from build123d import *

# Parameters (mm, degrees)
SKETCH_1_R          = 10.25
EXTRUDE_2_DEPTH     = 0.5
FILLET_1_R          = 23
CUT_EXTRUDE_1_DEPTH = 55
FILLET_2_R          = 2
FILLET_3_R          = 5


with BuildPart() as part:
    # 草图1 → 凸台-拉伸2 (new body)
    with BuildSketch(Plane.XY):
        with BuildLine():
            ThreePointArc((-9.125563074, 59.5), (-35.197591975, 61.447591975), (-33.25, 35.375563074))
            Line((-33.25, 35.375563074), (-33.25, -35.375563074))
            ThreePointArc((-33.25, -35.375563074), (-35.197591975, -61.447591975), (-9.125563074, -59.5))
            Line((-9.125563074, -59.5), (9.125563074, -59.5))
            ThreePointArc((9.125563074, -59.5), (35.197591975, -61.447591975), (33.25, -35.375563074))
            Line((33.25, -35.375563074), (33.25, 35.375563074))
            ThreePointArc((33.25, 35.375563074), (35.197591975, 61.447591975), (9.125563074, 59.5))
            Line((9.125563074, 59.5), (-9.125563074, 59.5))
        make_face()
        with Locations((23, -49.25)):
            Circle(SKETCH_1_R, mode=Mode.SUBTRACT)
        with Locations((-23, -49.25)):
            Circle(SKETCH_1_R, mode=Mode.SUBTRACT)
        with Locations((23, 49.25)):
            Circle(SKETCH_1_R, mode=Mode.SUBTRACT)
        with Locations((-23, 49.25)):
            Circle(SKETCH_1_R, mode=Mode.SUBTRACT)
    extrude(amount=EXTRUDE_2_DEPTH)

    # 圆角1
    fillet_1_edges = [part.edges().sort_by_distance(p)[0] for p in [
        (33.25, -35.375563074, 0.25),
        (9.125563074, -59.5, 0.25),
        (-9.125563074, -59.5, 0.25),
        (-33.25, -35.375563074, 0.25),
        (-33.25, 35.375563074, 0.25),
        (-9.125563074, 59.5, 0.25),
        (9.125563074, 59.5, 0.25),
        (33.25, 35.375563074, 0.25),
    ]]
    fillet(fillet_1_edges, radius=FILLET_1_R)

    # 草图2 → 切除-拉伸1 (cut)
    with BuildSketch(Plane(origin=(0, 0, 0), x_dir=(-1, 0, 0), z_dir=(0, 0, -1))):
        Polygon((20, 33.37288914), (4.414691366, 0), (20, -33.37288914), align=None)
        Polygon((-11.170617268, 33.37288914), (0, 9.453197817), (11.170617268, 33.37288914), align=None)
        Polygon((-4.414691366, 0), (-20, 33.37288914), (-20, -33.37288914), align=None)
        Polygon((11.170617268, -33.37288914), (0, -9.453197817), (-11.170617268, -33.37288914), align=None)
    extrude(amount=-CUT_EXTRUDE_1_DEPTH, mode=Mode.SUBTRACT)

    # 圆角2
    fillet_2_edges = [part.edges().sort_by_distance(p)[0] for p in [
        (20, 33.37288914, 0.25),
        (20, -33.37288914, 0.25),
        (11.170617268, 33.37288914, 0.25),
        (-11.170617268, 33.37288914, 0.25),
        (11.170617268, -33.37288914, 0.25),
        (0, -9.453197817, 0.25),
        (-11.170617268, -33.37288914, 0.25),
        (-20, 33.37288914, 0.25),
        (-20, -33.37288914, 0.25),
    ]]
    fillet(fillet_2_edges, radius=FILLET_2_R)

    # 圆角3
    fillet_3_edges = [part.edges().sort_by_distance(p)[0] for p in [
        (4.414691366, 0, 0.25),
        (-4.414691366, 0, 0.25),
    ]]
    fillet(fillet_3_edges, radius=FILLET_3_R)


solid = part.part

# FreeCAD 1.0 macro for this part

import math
import FreeCAD as App
import Part
import Sketcher

V = App.Vector


def edges_at(feature, points):
    """Names of the edges that pass closest to the given points."""
    edges = feature.Shape.Edges
    near = lambda p: min(range(len(edges)), key=lambda i: edges[i].distToShape(Part.Vertex(*p))[0])
    return sorted({f"Edge{near(p) + 1}" for p in points})


def add_polygon(sketch, points):
    """Adds a closed chain of lines whose ends are joined by coincident constraints."""
    first, n = sketch.GeometryCount, len(points)
    for a, b in zip(points, points[1:] + points[:1]):
        sketch.addGeometry(Part.LineSegment(App.Vector(*a, 0), App.Vector(*b, 0)), False)
    for i in range(n):
        sketch.addConstraint(Sketcher.Constraint("Coincident", first + i, 2, first + (i + 1) % n, 1))

doc = App.newDocument("Part")
body = doc.addObject("PartDesign::Body", "Body")

# Sketch on XY plane
sketch1 = body.newObject("Sketcher::SketchObject", "Sketch")
sketch1.AttachmentSupport = (doc.getObject("XY_Plane"), [""])
sketch1.MapMode = "FlatFace"
sketch1.addGeometry([
    Part.ArcOfCircle(Part.Circle(V(-23, 49.25, 0), V(0, 0, 1), 17.25), math.radians(36.455829), math.radians(233.544171)),  # 0
    Part.LineSegment(V(-33.25, 35.375563, 0), V(-33.25, -35.375563, 0)),  # 1
    Part.ArcOfCircle(Part.Circle(V(-23, -49.25, 0), V(0, 0, 1), 17.25), math.radians(126.455829), math.radians(323.544171)),  # 2
    Part.LineSegment(V(-9.125563, -59.5, 0), V(9.125563, -59.5, 0)),  # 3
    Part.ArcOfCircle(Part.Circle(V(23, -49.25, 0), V(0, 0, 1), 17.25), math.radians(-143.544171), math.radians(53.544171)),  # 4
    Part.LineSegment(V(33.25, -35.375563, 0), V(33.25, 35.375563, 0)),  # 5
    Part.ArcOfCircle(Part.Circle(V(23, 49.25, 0), V(0, 0, 1), 17.25), math.radians(-53.544171), math.radians(143.544171)),  # 6
    Part.LineSegment(V(9.125563, 59.5, 0), V(-9.125563, 59.5, 0)),  # 7
    Part.Circle(V(-23, -49.25, 0), V(0, 0, 1), 10.25),  # 8
    Part.Circle(V(23, -49.25, 0), V(0, 0, 1), 10.25),  # 9
    Part.Circle(V(-23, 49.25, 0), V(0, 0, 1), 10.25),  # 10
    Part.Circle(V(23, 49.25, 0), V(0, 0, 1), 10.25),  # 11
], False)
sketch1.addConstraint([
    Sketcher.Constraint("Coincident", 0, 2, 1, 1),
    Sketcher.Constraint("Coincident", 1, 2, 2, 1),
    Sketcher.Constraint("Coincident", 2, 2, 3, 1),
    Sketcher.Constraint("Coincident", 3, 2, 4, 1),
    Sketcher.Constraint("Coincident", 4, 2, 5, 1),
    Sketcher.Constraint("Coincident", 5, 2, 6, 1),
    Sketcher.Constraint("Coincident", 6, 2, 7, 1),
    Sketcher.Constraint("Coincident", 7, 2, 0, 1),
    Sketcher.Constraint("Vertical", 1),
    Sketcher.Constraint("Horizontal", 3),
    Sketcher.Constraint("Vertical", 5),
    Sketcher.Constraint("Horizontal", 7),
    Sketcher.Constraint("Coincident", 8, 3, 2, 3),
    Sketcher.Constraint("Coincident", 9, 3, 4, 3),
    Sketcher.Constraint("Coincident", 10, 3, 0, 3),
    Sketcher.Constraint("Coincident", 11, 3, 6, 3),
    Sketcher.Constraint("Equal", 0, 2),
    Sketcher.Constraint("Equal", 2, 4),
    Sketcher.Constraint("Equal", 4, 6),
    Sketcher.Constraint("Equal", 8, 9),
    Sketcher.Constraint("Equal", 9, 10),
    Sketcher.Constraint("Equal", 10, 11),
    Sketcher.Constraint("Symmetric", 0, 3, 4, 3, -1, 1),
    Sketcher.Constraint("Symmetric", 2, 3, 6, 3, -1, 1),
    Sketcher.Constraint("Symmetric", 2, 3, 4, 3, -2),
    Sketcher.Constraint("Horizontal", 1, 2, 4, 2),
    Sketcher.Constraint("Vertical", 3, 2, 6, 2),
    Sketcher.Constraint("Diameter", 8, 20.5),
    Sketcher.Constraint("Radius", 0, 17.25),
    Sketcher.Constraint("DistanceX", 0, 3, -1, 1, 23.0),
    Sketcher.Constraint("DistanceY", 2, 2, -1, 1, 59.5),
    Sketcher.Constraint("DistanceY", 2, 3, 0, 3, 98.5),
    Sketcher.Constraint("DistanceX", 0, 2, 5, 2, 66.5),
])
pad1 = body.newObject("PartDesign::Pad", "Pad")
pad1.Profile = sketch1
pad1.Length = 0.5
doc.recompute()

fillet = body.newObject("PartDesign::Fillet", "Fillet")
fillet.Base = (pad1, edges_at(pad1, [
    (33.25, -35.376, 0.25),
    (9.126, -59.5, 0.25),
    (-9.126, -59.5, 0.25),
    (-33.25, -35.376, 0.25),
    (-33.25, 35.376, 0.25),
    (-9.126, 59.5, 0.25),
    (9.126, 59.5, 0.25),
    (33.25, 35.376, 0.25),
]))
fillet.Radius = 23

# Sketch on XY plane
sketch2 = body.newObject("Sketcher::SketchObject", "Sketch001")
sketch2.AttachmentSupport = (doc.getObject("XY_Plane"), [""])
sketch2.MapMode = "FlatFace"
add_polygon(sketch2, [(-20, 33.372889), (-4.414691, 0), (-20, -33.372889)])  # lines 0-2
add_polygon(sketch2, [(11.170617, 33.372889), (0, 9.453198), (-11.170617, 33.372889)])  # lines 3-5
add_polygon(sketch2, [(4.414691, 0), (20, 33.372889), (20, -33.372889)])  # lines 6-8
add_polygon(sketch2, [(-11.170617, -33.372889), (0, -9.453198), (11.170617, -33.372889)])  # lines 9-11
sketch2.addConstraint([
    Sketcher.Constraint("Vertical", 2),
    Sketcher.Constraint("Horizontal", 5),
    Sketcher.Constraint("Vertical", 7),
    Sketcher.Constraint("Horizontal", 11),
    Sketcher.Constraint("Symmetric", 1, 2, 6, 2, -1, 1),
    Sketcher.Constraint("Symmetric", 0, 2, 8, 2, -1, 1),
    Sketcher.Constraint("Symmetric", 3, 2, 9, 2, -1, 1),
    Sketcher.Constraint("Symmetric", 4, 2, 10, 2, -1, 1),
    Sketcher.Constraint("PointOnObject", 0, 2, -1),
    Sketcher.Constraint("PointOnObject", 3, 2, -2),
    Sketcher.Constraint("Parallel", 1, 3),
    Sketcher.Constraint("Parallel", 0, 4),
    Sketcher.Constraint("Parallel", 4, 8),
    Sketcher.Constraint("Parallel", 6, 9),
    Sketcher.Constraint("Horizontal", 2, 2, 4, 2),
    Sketcher.Constraint("Horizontal", 5, 2, 6, 2),
    Sketcher.Constraint("DistanceX", 1, 2, -1, 1, 20.0),
    Sketcher.Constraint("DistanceY", 2, 1, 2, 2, 66.745778),
    Sketcher.Constraint("Distance", 0, 36.832751),
    Sketcher.Constraint("DistanceX", 5, 1, 5, 2, 22.341235),
])
pocket1 = body.newObject("PartDesign::Pocket", "Pocket")
pocket1.Profile = sketch2
pocket1.Length = 55
pocket1.Reversed = True
doc.recompute()

fillet2 = body.newObject("PartDesign::Fillet", "Fillet001")
fillet2.Base = (pocket1, edges_at(pocket1, [
    (20, 33.373, 0.25),
    (20, -33.373, 0.25),
    (11.171, 33.373, 0.25),
    (-11.171, 33.373, 0.25),
    (11.171, -33.373, 0.25),
    (0, -9.453, 0.25),
    (-11.171, -33.373, 0.25),
    (-20, 33.373, 0.25),
    (-20, -33.373, 0.25),
]))
fillet2.Radius = 2
doc.recompute()

fillet3 = body.newObject("PartDesign::Fillet", "Fillet002")
fillet3.Base = (fillet2, edges_at(fillet2, [(4.415, 0, 0.25), (-4.415, 0, 0.25)]))
fillet3.Radius = 5

doc.recompute()
